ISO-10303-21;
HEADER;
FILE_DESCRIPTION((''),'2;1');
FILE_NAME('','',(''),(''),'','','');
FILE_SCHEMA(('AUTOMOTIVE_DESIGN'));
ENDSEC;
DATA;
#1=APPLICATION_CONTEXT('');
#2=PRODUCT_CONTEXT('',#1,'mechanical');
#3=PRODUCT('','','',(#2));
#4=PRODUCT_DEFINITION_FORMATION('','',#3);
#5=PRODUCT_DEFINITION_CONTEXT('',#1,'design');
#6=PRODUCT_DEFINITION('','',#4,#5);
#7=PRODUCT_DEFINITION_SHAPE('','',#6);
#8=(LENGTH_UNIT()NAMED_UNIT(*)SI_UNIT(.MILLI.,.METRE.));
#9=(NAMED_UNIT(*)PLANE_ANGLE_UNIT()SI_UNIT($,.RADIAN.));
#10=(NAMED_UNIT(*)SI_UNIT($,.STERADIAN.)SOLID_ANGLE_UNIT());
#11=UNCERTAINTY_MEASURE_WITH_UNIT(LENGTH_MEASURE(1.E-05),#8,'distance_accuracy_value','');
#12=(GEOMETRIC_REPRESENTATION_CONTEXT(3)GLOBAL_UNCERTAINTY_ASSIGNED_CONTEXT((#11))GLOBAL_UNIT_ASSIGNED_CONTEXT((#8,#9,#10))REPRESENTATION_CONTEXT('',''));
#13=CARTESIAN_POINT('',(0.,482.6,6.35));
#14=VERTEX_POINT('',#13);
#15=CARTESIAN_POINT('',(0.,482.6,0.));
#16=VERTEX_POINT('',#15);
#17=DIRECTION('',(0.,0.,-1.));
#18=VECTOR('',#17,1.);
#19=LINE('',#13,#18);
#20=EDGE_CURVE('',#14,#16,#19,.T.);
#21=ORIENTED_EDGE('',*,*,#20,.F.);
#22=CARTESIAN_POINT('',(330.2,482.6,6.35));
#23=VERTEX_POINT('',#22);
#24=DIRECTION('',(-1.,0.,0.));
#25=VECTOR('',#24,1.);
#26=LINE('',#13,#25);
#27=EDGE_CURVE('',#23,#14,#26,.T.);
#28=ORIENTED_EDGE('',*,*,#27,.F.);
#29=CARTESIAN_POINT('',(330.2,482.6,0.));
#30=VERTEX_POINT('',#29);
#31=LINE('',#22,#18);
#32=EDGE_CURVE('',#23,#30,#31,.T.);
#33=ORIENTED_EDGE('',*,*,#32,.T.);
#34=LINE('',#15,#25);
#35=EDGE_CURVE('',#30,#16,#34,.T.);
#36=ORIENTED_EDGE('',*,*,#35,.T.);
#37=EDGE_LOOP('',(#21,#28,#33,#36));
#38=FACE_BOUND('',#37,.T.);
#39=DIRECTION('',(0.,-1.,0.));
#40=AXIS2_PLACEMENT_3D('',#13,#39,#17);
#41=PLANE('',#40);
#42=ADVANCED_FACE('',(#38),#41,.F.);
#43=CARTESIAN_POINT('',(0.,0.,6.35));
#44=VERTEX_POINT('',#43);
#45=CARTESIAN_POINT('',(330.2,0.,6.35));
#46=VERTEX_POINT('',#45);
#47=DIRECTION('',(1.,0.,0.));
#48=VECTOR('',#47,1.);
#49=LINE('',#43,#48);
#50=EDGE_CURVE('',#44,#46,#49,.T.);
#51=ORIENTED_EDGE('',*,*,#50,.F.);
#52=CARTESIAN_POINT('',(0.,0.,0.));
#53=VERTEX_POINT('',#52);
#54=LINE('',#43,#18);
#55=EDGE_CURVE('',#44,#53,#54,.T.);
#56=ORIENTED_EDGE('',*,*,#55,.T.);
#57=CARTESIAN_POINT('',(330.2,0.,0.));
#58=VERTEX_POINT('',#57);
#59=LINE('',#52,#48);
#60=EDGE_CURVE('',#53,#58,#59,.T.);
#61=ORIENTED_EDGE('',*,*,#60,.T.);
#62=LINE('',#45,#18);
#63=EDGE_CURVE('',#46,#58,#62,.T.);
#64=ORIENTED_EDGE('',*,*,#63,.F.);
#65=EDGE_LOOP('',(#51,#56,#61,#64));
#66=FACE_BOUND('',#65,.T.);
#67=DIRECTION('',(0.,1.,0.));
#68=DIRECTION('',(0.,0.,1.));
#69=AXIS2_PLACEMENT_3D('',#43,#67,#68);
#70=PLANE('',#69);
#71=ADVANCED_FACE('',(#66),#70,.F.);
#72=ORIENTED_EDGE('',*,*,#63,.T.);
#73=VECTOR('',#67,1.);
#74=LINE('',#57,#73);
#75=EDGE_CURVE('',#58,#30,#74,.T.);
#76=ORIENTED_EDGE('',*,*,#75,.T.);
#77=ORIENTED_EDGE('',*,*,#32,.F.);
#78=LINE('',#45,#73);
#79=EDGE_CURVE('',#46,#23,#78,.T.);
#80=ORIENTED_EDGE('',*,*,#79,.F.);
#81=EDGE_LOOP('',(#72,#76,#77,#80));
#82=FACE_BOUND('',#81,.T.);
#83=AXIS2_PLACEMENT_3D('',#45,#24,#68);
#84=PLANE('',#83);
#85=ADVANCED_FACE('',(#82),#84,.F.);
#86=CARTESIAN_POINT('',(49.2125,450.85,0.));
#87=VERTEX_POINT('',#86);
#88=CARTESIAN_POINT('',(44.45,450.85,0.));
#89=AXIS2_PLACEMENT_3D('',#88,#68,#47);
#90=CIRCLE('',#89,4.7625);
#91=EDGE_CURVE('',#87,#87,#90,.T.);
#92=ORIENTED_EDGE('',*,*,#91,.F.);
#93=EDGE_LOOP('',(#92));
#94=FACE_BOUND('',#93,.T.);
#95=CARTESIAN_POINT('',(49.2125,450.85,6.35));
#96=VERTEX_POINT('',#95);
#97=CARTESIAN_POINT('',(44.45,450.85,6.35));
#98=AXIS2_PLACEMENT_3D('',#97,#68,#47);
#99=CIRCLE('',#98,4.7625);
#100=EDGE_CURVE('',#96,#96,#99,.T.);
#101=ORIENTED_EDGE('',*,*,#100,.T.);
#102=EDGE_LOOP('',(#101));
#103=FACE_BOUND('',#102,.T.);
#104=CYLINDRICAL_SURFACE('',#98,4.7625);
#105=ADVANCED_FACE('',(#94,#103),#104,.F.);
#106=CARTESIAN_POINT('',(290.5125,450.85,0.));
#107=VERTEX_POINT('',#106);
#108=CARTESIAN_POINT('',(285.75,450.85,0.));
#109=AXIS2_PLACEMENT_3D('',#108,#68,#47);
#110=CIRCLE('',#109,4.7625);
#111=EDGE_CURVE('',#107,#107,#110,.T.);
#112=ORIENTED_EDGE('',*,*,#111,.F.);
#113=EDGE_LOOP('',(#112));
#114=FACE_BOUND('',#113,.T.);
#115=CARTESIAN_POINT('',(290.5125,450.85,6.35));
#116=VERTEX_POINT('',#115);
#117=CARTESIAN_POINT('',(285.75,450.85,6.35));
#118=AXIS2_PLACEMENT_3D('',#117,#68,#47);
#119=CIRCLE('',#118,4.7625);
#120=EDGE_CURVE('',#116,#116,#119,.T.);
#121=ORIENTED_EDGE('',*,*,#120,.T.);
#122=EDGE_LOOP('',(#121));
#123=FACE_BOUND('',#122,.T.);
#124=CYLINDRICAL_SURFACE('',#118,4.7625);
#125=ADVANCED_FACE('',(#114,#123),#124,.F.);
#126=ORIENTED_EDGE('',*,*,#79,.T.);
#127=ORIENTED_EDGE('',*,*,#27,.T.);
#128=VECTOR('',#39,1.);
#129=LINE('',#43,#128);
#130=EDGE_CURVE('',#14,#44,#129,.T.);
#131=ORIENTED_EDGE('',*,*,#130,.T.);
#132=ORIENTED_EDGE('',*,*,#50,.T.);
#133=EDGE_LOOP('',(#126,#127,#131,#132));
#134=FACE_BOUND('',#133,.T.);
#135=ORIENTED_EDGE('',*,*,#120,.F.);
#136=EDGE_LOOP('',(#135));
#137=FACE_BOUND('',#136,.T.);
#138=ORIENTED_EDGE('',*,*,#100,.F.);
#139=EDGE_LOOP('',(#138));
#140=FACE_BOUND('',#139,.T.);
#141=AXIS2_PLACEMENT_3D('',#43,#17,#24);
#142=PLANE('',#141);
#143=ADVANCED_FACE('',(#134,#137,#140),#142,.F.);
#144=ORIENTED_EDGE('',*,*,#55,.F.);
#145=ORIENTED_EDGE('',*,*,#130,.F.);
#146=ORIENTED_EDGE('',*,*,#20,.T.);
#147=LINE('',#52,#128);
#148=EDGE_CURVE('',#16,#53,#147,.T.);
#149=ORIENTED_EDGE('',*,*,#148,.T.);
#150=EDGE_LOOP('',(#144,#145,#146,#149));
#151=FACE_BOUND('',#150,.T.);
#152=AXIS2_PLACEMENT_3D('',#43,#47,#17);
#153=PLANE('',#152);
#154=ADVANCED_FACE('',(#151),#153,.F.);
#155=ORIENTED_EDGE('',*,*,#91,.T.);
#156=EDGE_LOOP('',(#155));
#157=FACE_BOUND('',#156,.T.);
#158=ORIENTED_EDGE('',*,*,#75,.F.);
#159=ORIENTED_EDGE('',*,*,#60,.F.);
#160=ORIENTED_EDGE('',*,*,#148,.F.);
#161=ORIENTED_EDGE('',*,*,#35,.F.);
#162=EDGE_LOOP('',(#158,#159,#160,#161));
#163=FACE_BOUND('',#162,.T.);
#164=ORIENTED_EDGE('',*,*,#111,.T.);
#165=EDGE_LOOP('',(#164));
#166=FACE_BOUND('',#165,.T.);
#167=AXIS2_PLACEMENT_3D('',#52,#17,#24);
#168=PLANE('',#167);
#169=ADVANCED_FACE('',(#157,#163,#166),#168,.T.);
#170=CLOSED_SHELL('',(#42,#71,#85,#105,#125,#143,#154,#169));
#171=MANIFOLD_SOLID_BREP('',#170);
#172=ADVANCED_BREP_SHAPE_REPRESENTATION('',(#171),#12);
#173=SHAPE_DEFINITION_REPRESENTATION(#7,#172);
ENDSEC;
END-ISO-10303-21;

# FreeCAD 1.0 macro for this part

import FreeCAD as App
import Part
import Sketcher

V = App.Vector
Q = App.Units.Quantity


def add_polygon(sketch, points):
    """Adds a closed chain of lines whose ends are joined by coincident constraints."""
    first, n = sketch.GeometryCount, len(points)
    for a, b in zip(points, points[1:] + points[:1]):
        sketch.addGeometry(Part.LineSegment(App.Vector(*a, 0), App.Vector(*b, 0)), False)
    for i in range(n):
        sketch.addConstraint(Sketcher.Constraint("Coincident", first + i, 2, first + (i + 1) % n, 1))

doc = App.newDocument("Part")
body = doc.addObject("PartDesign::Body", "Body")

# Sketch on XY plane
sketch1 = doc.addObject("Sketcher::SketchObject", "Sketch")
body.addObject(sketch1)
sketch1.AttachmentSupport = (doc.XY_Plane, [""])
sketch1.MapMode = "FlatFace"
add_polygon(sketch1, [(0, 483), (0, 0), (330, 0), (330, 483)])  # lines 0-3
sketch1.addConstraint(Sketcher.Constraint("Vertical", 0))
sketch1.addConstraint(Sketcher.Constraint("Horizontal", 1))
sketch1.addConstraint(Sketcher.Constraint("Vertical", 2))
sketch1.addConstraint(Sketcher.Constraint("Horizontal", 3))
sketch1.addConstraint(Sketcher.Constraint("Coincident", 0, 2, -1, 1))
sketch1.addConstraint(Sketcher.Constraint("DistanceX", 1, 1, 1, 2, Q("13 in")))
sketch1.addConstraint(Sketcher.Constraint("DistanceY", 0, 2, 0, 1, Q("19 in")))
pad1 = doc.addObject("PartDesign::Pad", "Pad")
body.addObject(pad1)
pad1.Profile = sketch1
pad1.Length = Q("0.25 in")

# Sketch on XY plane
sketch2 = doc.addObject("Sketcher::SketchObject", "Sketch001")
body.addObject(sketch2)
sketch2.AttachmentSupport = (doc.XY_Plane, [""])
sketch2.MapMode = "FlatFace"
sketch2.AttachmentOffset = App.Placement(V(0, 0, 0.25 * 25.4), App.Rotation())
sketch2.addGeometry(Part.Circle(V(44.5, 450.9, 0), V(0, 0, 1), 4.8), False)
sketch2.addGeometry(Part.Circle(V(285.8, 450.9, 0), V(0, 0, 1), 4.8), False)
sketch2.addConstraint(Sketcher.Constraint("Equal", 0, 1))
sketch2.addConstraint(Sketcher.Constraint("Horizontal", 0, 3, 1, 3))
sketch2.addConstraint(Sketcher.Constraint("Diameter", 0, Q("0.375 in")))
sketch2.addConstraint(Sketcher.Constraint("DistanceX", 0, 3, 1, 3, Q("9.5 in")))
sketch2.addConstraint(Sketcher.Constraint("DistanceX", -1, 1, 0, 3, Q("1.75 in")))
sketch2.addConstraint(Sketcher.Constraint("DistanceY", -1, 1, 0, 3, Q("17.75 in")))
doc.recompute()
hole = doc.addObject("PartDesign::Hole", "Hole")
body.addObject(hole)
hole.Profile = sketch2
hole.ThreadType = "None"
hole.Diameter = Q("0.375 in")
hole.DepthType = "ThroughAll"

doc.recompute()
